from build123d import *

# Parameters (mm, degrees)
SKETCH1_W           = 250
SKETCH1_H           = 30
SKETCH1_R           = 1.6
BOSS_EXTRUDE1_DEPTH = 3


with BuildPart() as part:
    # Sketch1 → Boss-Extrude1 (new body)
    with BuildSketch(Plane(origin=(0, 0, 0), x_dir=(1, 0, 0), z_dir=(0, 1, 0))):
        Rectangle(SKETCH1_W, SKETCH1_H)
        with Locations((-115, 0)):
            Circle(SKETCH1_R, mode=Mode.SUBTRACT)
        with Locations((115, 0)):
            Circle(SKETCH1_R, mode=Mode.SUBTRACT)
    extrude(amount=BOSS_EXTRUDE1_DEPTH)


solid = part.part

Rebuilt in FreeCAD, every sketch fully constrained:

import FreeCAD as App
import Part
import Sketcher
Q = App.Units.Quantity

doc = App.newDocument("Part")
body = doc.addObject("PartDesign::Body", "Body")

sketch1 = doc.addObject("Sketcher::SketchObject", "Sketch")
body.addObject(sketch1)
sketch1.AttachmentSupport = (doc.XZ_Plane, [""])
sketch1.MapMode = "FlatFace"
sketch1.addGeometry(Part.LineSegment(App.Vector(-125, -15, 0), App.Vector(-125, 15, 0)), False)
sketch1.addGeometry(Part.LineSegment(App.Vector(-125, 15, 0), App.Vector(125, 15, 0)), False)
sketch1.addGeometry(Part.LineSegment(App.Vector(125, 15, 0), App.Vector(125, -15, 0)), False)
sketch1.addGeometry(Part.LineSegment(App.Vector(125, -15, 0), App.Vector(-125, -15, 0)), False)
sketch1.addGeometry(Part.Circle(App.Vector(-115, 0, 0), App.Vector(0, 0, 1), 1.6), False)
sketch1.addGeometry(Part.Circle(App.Vector(115, 0, 0), App.Vector(0, 0, 1), 1.6), False)
sketch1.addConstraint(Sketcher.Constraint("Coincident", 0, 2, 1, 1))
sketch1.addConstraint(Sketcher.Constraint("Coincident", 1, 2, 2, 1))
sketch1.addConstraint(Sketcher.Constraint("Coincident", 2, 2, 3, 1))
sketch1.addConstraint(Sketcher.Constraint("Coincident", 3, 2, 0, 1))
sketch1.addConstraint(Sketcher.Constraint("Vertical", 0))
sketch1.addConstraint(Sketcher.Constraint("Horizontal", 1))
sketch1.addConstraint(Sketcher.Constraint("Vertical", 2))
sketch1.addConstraint(Sketcher.Constraint("Horizontal", 3))
sketch1.addConstraint(Sketcher.Constraint("Equal", 4, 5))
sketch1.addConstraint(Sketcher.Constraint("Symmetric", 4, 3, 5, 3, -1, 1))
sketch1.addConstraint(Sketcher.Constraint("Symmetric", 0, 2, 2, 2, -1, 1))
sketch1.addConstraint(Sketcher.Constraint("PointOnObject", 4, 3, -1))
sketch1.addConstraint(Sketcher.Constraint("Diameter", 4, Q("3.2 mm")))
sketch1.addConstraint(Sketcher.Constraint("DistanceX", 1, 1, 1, 2, Q("250 mm")))
sketch1.addConstraint(Sketcher.Constraint("DistanceY", 0, 1, 0, 2, Q("30 mm")))
sketch1.addConstraint(Sketcher.Constraint("DistanceX", 4, 3, -1, 1, Q("115 mm")))
pad1 = doc.addObject("PartDesign::Pad", "Pad")
body.addObject(pad1)
pad1.Profile = sketch1
pad1.Length = 3
pad1.Reversed = True

doc.recompute()
